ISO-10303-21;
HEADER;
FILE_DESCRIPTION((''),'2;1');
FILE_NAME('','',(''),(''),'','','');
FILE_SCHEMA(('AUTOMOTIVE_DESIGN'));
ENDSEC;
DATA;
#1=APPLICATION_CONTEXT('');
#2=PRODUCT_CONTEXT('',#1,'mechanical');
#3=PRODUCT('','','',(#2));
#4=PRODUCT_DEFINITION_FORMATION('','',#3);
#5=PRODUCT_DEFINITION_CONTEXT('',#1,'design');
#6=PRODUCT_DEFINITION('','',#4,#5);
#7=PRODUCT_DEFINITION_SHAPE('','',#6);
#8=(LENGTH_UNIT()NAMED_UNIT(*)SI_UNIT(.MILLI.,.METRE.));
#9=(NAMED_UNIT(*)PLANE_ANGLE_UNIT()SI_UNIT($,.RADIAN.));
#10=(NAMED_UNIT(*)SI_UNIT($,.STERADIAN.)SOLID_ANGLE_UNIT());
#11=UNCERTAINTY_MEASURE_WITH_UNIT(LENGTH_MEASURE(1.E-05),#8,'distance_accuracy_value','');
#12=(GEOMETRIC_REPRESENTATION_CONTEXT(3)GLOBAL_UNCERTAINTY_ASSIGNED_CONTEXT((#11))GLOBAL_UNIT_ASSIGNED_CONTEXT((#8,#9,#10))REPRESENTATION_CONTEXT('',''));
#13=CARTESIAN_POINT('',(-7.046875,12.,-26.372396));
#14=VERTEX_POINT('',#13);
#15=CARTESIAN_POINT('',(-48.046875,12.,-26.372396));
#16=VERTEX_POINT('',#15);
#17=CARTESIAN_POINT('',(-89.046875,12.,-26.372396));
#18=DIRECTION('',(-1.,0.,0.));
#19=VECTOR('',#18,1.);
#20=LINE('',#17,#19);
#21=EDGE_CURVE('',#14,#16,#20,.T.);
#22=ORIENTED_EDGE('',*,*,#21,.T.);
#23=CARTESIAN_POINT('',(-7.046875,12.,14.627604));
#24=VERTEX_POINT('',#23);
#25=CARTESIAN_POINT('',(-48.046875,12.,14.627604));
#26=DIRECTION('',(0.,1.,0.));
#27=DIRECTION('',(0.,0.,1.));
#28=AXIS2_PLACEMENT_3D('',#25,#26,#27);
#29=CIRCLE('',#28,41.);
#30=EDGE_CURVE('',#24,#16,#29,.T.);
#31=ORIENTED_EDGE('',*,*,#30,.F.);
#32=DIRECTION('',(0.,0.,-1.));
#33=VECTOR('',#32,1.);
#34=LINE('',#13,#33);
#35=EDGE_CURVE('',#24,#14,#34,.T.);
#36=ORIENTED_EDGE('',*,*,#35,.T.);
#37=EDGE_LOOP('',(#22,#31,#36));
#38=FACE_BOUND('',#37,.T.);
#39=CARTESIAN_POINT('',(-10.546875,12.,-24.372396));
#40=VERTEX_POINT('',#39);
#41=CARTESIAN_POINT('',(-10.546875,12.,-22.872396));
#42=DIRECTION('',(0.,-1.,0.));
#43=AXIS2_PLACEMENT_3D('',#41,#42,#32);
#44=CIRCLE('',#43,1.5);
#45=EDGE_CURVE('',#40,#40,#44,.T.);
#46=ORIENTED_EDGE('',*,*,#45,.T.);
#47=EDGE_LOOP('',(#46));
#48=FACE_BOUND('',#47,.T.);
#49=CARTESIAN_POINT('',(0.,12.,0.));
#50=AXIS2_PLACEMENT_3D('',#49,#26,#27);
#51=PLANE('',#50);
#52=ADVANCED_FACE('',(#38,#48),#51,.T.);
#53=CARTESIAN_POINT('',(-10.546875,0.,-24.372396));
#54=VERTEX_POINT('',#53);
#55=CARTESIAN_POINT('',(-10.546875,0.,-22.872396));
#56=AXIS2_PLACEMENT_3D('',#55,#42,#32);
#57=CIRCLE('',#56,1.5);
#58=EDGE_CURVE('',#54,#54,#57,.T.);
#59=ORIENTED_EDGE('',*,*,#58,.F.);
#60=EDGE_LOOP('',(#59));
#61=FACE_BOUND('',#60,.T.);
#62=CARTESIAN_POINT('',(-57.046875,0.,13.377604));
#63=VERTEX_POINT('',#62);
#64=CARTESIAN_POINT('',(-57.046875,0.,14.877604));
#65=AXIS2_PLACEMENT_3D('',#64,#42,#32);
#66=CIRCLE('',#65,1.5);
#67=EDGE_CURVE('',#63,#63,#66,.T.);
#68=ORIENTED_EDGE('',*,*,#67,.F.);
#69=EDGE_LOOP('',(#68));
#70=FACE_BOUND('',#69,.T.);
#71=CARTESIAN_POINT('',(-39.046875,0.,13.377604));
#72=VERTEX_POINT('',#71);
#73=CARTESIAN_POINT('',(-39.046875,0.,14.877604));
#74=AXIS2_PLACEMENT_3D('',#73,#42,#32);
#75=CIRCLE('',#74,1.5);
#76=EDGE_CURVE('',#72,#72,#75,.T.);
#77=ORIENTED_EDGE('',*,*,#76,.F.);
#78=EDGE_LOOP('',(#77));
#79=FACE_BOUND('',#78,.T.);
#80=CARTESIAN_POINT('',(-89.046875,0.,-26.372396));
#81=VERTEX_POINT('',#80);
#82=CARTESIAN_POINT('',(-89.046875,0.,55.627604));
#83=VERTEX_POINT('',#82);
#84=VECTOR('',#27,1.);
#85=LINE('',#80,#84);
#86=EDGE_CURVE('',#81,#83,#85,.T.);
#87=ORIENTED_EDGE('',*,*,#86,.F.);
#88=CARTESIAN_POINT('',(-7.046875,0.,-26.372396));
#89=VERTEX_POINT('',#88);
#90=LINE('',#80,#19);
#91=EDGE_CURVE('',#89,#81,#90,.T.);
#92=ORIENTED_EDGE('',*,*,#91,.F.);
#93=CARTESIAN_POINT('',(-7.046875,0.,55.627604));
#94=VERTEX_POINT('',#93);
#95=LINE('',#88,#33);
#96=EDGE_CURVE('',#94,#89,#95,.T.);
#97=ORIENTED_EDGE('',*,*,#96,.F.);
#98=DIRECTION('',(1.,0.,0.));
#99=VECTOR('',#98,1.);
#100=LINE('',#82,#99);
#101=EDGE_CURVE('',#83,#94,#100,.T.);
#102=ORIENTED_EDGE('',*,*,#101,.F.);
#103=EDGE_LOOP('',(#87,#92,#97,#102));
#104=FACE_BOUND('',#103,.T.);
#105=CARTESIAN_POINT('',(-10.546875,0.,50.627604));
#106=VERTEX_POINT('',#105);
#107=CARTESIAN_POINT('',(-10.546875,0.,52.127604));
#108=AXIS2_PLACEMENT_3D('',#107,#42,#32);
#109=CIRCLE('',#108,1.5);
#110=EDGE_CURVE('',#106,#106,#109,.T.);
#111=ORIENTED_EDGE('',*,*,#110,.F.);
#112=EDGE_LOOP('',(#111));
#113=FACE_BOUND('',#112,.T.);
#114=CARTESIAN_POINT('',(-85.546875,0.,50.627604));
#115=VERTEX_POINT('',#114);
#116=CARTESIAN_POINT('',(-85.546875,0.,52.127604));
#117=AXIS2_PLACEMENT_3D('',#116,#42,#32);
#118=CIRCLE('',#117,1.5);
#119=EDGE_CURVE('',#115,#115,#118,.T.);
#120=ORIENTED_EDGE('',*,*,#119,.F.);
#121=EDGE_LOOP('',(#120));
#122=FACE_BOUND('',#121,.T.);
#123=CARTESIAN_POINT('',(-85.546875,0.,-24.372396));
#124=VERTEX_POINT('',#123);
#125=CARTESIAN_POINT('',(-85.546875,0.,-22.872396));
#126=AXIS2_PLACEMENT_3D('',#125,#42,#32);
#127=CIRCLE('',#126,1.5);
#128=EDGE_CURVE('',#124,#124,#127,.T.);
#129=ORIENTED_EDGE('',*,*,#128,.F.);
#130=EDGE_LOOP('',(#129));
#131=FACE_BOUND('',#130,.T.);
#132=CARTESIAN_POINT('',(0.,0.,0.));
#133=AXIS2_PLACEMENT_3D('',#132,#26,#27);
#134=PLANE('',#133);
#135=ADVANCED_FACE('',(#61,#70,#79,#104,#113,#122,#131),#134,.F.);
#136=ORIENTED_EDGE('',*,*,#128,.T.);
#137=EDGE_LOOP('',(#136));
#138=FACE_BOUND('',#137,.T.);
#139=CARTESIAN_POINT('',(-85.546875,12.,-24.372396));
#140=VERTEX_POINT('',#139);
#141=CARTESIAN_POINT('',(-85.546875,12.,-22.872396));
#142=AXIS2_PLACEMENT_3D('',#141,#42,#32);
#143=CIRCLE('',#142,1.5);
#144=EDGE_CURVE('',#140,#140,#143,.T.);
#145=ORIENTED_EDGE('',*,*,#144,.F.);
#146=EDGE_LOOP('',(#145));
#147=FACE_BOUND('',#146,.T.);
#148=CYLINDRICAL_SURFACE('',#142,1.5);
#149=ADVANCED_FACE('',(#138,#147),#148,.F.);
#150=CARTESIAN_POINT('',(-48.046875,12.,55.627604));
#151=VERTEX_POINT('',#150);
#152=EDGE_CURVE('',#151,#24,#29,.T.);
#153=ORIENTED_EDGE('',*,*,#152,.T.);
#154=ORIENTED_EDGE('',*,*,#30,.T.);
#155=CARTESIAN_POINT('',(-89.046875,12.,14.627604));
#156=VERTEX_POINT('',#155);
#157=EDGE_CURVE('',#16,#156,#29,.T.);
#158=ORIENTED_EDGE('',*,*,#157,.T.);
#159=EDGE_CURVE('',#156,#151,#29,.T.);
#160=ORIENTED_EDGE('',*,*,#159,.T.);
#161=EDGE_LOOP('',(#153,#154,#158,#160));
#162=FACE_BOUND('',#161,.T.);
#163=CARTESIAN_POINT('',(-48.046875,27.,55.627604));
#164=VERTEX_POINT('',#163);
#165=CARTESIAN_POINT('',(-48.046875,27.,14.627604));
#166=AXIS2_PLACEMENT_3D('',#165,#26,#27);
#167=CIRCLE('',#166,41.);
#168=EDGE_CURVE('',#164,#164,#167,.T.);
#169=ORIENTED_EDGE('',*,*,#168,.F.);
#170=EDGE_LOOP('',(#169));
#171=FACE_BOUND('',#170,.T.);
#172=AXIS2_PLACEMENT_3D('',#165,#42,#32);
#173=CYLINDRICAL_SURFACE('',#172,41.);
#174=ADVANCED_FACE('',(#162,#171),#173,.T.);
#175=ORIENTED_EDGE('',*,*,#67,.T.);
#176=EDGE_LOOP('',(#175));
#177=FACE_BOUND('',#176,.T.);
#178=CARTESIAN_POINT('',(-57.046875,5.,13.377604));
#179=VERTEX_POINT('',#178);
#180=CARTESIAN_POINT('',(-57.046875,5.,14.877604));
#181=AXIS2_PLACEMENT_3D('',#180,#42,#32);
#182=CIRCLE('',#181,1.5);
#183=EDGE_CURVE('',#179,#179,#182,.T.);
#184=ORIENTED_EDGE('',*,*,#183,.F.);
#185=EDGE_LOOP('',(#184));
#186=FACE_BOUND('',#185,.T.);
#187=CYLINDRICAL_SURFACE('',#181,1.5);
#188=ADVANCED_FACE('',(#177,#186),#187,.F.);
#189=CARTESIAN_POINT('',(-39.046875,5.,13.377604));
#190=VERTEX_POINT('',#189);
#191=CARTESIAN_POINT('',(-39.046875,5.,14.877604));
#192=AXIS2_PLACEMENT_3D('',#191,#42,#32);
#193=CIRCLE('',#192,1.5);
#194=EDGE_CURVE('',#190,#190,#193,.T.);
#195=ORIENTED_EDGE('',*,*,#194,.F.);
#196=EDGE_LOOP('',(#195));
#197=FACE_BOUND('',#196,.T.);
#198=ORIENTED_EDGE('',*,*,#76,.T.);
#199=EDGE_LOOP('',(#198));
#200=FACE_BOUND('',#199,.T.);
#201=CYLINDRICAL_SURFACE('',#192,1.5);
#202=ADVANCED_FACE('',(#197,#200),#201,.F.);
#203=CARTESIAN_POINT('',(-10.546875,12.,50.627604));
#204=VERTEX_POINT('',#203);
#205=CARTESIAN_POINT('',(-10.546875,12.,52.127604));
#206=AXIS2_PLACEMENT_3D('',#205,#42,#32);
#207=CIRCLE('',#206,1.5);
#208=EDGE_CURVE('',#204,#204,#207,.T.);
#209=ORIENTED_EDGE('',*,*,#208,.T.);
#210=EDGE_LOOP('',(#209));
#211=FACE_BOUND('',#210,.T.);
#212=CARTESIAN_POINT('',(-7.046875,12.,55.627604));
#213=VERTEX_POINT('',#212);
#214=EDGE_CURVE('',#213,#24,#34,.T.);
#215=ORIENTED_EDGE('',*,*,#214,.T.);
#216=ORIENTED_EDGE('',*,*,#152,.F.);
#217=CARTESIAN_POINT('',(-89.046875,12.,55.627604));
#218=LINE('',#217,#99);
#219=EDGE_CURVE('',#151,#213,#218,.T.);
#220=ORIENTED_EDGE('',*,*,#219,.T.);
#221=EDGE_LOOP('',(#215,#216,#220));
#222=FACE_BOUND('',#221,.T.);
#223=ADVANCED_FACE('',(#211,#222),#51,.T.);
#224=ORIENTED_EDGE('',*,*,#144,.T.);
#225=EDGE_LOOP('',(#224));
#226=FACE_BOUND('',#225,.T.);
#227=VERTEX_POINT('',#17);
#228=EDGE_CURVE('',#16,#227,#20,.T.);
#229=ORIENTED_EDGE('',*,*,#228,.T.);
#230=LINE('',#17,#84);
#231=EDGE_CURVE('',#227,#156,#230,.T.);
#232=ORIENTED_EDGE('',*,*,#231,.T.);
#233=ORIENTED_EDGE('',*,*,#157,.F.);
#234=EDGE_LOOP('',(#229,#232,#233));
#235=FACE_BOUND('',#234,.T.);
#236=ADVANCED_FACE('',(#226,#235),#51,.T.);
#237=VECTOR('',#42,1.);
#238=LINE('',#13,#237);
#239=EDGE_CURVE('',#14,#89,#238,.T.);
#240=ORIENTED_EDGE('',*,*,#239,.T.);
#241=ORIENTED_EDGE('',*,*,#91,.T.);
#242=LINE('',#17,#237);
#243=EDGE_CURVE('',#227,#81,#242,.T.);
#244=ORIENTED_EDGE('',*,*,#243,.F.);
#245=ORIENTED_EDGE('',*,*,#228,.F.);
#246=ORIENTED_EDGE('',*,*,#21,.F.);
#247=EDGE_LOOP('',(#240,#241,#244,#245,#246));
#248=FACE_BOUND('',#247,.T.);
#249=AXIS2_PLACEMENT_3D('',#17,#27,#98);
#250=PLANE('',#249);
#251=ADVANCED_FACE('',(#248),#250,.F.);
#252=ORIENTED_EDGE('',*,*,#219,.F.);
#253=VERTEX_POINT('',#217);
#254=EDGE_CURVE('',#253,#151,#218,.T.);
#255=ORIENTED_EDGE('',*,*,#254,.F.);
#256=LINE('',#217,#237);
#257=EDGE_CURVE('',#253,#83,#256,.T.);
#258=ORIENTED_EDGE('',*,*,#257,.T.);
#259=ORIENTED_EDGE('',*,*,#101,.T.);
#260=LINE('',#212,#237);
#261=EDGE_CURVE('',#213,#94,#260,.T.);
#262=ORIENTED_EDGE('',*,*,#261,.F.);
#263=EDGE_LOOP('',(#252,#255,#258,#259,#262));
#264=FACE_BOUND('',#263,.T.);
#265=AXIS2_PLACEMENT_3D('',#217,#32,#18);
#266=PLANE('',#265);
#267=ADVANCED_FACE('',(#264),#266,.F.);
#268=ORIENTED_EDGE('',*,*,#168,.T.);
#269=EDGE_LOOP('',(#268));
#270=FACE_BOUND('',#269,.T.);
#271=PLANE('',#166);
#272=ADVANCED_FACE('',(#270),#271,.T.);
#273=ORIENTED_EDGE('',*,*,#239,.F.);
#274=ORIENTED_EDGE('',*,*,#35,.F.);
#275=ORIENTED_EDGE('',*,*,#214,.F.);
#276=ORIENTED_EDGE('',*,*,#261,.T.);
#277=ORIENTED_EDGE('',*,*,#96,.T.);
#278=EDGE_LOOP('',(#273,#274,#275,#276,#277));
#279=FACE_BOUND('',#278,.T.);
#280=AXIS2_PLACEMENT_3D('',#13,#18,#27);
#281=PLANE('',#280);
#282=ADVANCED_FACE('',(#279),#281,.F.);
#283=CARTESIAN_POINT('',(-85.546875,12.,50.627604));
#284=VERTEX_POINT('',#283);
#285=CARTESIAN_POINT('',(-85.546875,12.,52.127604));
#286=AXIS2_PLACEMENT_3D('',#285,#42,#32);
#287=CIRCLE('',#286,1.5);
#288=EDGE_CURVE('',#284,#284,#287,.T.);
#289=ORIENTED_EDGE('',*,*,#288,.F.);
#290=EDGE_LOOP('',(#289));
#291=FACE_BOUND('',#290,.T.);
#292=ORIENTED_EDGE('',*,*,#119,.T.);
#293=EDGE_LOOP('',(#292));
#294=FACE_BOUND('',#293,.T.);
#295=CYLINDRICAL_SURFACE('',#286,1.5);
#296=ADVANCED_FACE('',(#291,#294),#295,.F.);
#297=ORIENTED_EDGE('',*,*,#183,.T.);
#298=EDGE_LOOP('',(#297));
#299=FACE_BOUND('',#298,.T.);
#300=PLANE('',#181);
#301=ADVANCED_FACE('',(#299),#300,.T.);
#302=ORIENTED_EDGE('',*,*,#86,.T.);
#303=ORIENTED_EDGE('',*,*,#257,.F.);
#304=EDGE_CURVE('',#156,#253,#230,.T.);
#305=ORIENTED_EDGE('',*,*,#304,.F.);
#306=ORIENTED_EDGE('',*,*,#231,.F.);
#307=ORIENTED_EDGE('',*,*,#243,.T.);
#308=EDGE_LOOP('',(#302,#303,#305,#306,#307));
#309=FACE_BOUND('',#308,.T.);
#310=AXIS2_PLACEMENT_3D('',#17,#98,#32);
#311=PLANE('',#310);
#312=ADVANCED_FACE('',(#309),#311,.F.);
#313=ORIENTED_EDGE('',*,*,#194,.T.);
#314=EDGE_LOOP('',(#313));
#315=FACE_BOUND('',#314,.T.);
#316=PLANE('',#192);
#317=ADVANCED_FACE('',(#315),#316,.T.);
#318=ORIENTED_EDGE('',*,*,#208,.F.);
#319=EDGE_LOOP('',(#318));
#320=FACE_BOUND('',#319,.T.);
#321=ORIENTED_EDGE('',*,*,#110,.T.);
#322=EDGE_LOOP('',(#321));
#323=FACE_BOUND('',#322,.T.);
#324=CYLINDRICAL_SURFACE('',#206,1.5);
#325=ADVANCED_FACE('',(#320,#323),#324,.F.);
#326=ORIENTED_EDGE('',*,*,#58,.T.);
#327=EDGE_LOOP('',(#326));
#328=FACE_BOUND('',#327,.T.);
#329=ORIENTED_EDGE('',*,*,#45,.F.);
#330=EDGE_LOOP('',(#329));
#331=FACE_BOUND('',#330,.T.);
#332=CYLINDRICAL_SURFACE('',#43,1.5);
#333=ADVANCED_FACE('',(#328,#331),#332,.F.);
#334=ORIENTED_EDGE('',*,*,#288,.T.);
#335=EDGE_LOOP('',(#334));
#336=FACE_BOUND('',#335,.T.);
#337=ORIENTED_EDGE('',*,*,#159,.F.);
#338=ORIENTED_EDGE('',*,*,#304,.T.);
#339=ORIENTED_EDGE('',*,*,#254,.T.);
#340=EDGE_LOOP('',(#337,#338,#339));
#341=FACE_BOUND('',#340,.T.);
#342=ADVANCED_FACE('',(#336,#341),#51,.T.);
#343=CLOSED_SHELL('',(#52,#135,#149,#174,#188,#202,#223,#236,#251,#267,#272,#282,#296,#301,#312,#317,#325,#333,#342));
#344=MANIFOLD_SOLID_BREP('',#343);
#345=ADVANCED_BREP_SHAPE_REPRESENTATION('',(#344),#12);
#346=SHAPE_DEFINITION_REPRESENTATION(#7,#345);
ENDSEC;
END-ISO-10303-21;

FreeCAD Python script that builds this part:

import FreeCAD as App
import Part
import Sketcher

V = App.Vector
Q = App.Units.Quantity

doc = App.newDocument("Part")
body = doc.addObject("PartDesign::Body", "Body")

sketch1 = body.newObject("Sketcher::SketchObject", "Sketch")
sketch1.AttachmentSupport = (doc.getObject("XZ_Plane"), [""])
sketch1.MapMode = "FlatFace"
sketch1.addGeometry([
    Part.LineSegment(V(-89, -26, 0), V(-89, 56, 0)),
    Part.LineSegment(V(-89, 56, 0), V(-7, 56, 0)),
    Part.LineSegment(V(-7, 56, 0), V(-7, -26, 0)),
    Part.LineSegment(V(-7, -26, 0), V(-89, -26, 0)),
], False)
sketch1.addConstraint([
    Sketcher.Constraint("Coincident", 0, 2, 1, 1),
    Sketcher.Constraint("Coincident", 1, 2, 2, 1),
    Sketcher.Constraint("Coincident", 2, 2, 3, 1),
    Sketcher.Constraint("Coincident", 3, 2, 0, 1),
    Sketcher.Constraint("Vertical", 0),
    Sketcher.Constraint("Horizontal", 1),
    Sketcher.Constraint("Vertical", 2),
    Sketcher.Constraint("Horizontal", 3),
    Sketcher.Constraint("Equal", 3, 0),
    Sketcher.Constraint("DistanceX", 1, 1, 1, 2, Q("82 mm")),
    Sketcher.Constraint("DistanceX", 0, 2, -1, 1, Q("89.046875 mm")),
    Sketcher.Constraint("DistanceY", -1, 1, 0, 2, Q("55.627604 mm")),
])
pad1 = body.newObject("PartDesign::Pad", "Pad")
pad1.Profile = sketch1
pad1.Length = 12
pad1.Reversed = True

sketch2 = body.newObject("Sketcher::SketchObject", "Sketch001")
sketch2.AttachmentSupport = (doc.getObject("XZ_Plane"), [""])
sketch2.MapMode = "FlatFace"
sketch2.addGeometry([
    Part.Circle(V(-85.5, 52.1, 0), V(0, 0, 1), 1.5),
    Part.Circle(V(-10.5, 52.1, 0), V(0, 0, 1), 1.5),
    Part.Circle(V(-85.5, -22.9, 0), V(0, 0, 1), 1.5),
    Part.Circle(V(-10.5, -22.9, 0), V(0, 0, 1), 1.5),
], False)
sketch2.addConstraint([
    Sketcher.Constraint("Equal", 0, 1),
    Sketcher.Constraint("Equal", 1, 2),
    Sketcher.Constraint("Equal", 2, 3),
    Sketcher.Constraint("Horizontal", 0, 3, 1, 3),
    Sketcher.Constraint("Horizontal", 2, 3, 3, 3),
    Sketcher.Constraint("Vertical", 0, 3, 2, 3),
    Sketcher.Constraint("Vertical", 1, 3, 3, 3),
    Sketcher.Constraint("Diameter", 0, Q("3 mm")),
    Sketcher.Constraint("DistanceX", 0, 3, 1, 3, Q("75 mm")),
    Sketcher.Constraint("DistanceY", 2, 3, 0, 3, Q("75 mm")),
    Sketcher.Constraint("DistanceX", 0, 3, -1, 1, Q("85.546875 mm")),
    Sketcher.Constraint("DistanceY", -1, 1, 0, 3, Q("52.127604 mm")),
])
pocket1 = body.newObject("PartDesign::Pocket", "Pocket")
pocket1.Profile = sketch2
pocket1.Type = "ThroughAll"

sketch3 = body.newObject("Sketcher::SketchObject", "Sketch002")
sketch3.AttachmentSupport = (doc.getObject("XZ_Plane"), [""])
sketch3.MapMode = "FlatFace"
sketch3.AttachmentOffset = App.Placement(V(0, 0, -12), App.Rotation())
sketch3.addGeometry(Part.Circle(V(-48, 15, 0), V(0, 0, 1), 41), False)
sketch3.addConstraint([
    Sketcher.Constraint("Diameter", 0, Q("82 mm")),
    Sketcher.Constraint("DistanceX", 0, 3, -1, 1, Q("48.046875 mm")),
    Sketcher.Constraint("DistanceY", -1, 1, 0, 3, Q("14.627604 mm")),
])
pad2 = body.newObject("PartDesign::Pad", "Pad001")
pad2.Profile = sketch3
pad2.Length = 15
pad2.Reversed = True

sketch4 = body.newObject("Sketcher::SketchObject", "Sketch003")
sketch4.AttachmentSupport = (doc.getObject("XZ_Plane"), [""])
sketch4.MapMode = "FlatFace"
sketch4.addGeometry([
    Part.Circle(V(-57, 14.9, 0), V(0, 0, 1), 1.5),
    Part.Circle(V(-39, 14.9, 0), V(0, 0, 1), 1.5),
], False)
sketch4.addConstraint([
    Sketcher.Constraint("Equal", 0, 1),
    Sketcher.Constraint("Horizontal", 0, 3, 1, 3),
    Sketcher.Constraint("Diameter", 0, Q("3 mm")),
    Sketcher.Constraint("DistanceX", 0, 3, 1, 3, Q("18 mm")),
    Sketcher.Constraint("DistanceX", 0, 3, -1, 1, Q("57.046875 mm")),
    Sketcher.Constraint("DistanceY", -1, 1, 0, 3, Q("14.877604 mm")),
])
pocket2 = body.newObject("PartDesign::Pocket", "Pocket001")
pocket2.Profile = sketch4
pocket2.Length = 5

doc.recompute()
